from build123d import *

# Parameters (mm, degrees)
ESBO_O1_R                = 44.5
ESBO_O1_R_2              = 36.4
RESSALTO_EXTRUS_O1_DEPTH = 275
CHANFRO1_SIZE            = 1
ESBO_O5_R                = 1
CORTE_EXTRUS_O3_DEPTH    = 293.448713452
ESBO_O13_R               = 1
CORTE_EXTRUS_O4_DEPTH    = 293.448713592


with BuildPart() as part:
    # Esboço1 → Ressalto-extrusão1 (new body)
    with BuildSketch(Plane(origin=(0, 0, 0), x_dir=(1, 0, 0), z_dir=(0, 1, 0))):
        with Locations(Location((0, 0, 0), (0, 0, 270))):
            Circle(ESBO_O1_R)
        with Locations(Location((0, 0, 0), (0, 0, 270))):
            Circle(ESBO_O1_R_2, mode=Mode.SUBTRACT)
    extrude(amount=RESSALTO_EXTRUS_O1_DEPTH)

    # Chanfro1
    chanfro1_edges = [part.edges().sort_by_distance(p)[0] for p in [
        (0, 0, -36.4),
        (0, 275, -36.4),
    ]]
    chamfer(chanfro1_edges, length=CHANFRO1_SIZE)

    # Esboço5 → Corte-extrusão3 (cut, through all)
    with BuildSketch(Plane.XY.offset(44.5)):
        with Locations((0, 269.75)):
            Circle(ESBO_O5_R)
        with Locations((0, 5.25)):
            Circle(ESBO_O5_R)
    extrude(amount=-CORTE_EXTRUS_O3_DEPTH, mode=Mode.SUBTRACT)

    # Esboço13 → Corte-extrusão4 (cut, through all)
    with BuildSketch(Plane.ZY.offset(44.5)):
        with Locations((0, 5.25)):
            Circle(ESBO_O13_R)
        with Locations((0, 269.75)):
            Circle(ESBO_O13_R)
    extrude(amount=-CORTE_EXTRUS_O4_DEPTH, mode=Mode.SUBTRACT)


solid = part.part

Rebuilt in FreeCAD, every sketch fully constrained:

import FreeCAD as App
import Part
import Sketcher

V = App.Vector
Q = App.Units.Quantity


def edges_at(feature, points):
    """Names of the edges that pass closest to the given points."""
    edges = feature.Shape.Edges
    near = lambda p: min(range(len(edges)), key=lambda i: edges[i].distToShape(Part.Vertex(*p))[0])
    return sorted({f"Edge{near(p) + 1}" for p in points})

doc = App.newDocument("Part")
body = doc.addObject("PartDesign::Body", "Body")

sketch1 = body.newObject("Sketcher::SketchObject", "Sketch")
sketch1.AttachmentSupport = (doc.getObject("XZ_Plane"), [""])
sketch1.MapMode = "FlatFace"
sketch1.addGeometry(Part.Circle(V(0, 0, 0), V(0, 0, 1), 44), False)
sketch1.addGeometry(Part.Circle(V(0, 0, 0), V(0, 0, 1), 36), False)
sketch1.addConstraint(Sketcher.Constraint("Coincident", 0, 3, -1, 1))
sketch1.addConstraint(Sketcher.Constraint("Coincident", 1, 3, -1, 1))
sketch1.addConstraint(Sketcher.Constraint("Diameter", 0, Q("89 mm")))
sketch1.addConstraint(Sketcher.Constraint("Diameter", 1, Q("72.8 mm")))
pad1 = body.newObject("PartDesign::Pad", "Pad")
pad1.Profile = sketch1
pad1.Length = 275
pad1.Reversed = True
doc.recompute()

chamfer = body.newObject("PartDesign::Chamfer", "Chamfer")
chamfer.Base = (pad1, edges_at(pad1, [(0, 0, -36.4), (0, 275, -36.4)]))
chamfer.Size = 1

sketch2 = body.newObject("Sketcher::SketchObject", "Sketch001")
sketch2.AttachmentSupport = (doc.getObject("XY_Plane"), [""])
sketch2.MapMode = "FlatFace"
sketch2.AttachmentOffset = App.Placement(V(0, 0, 44.5), App.Rotation())
sketch2.addGeometry(Part.Circle(V(0, 269.8, 0), V(0, 0, 1), 1), False)
sketch2.addGeometry(Part.Circle(V(0, 5.2, 0), V(0, 0, 1), 1), False)
sketch2.addConstraint(Sketcher.Constraint("Equal", 0, 1))
sketch2.addConstraint(Sketcher.Constraint("PointOnObject", 0, 3, -2))
sketch2.addConstraint(Sketcher.Constraint("PointOnObject", 1, 3, -2))
sketch2.addConstraint(Sketcher.Constraint("Diameter", 0, Q("2 mm")))
sketch2.addConstraint(Sketcher.Constraint("DistanceY", 1, 3, 0, 3, Q("264.5 mm")))
sketch2.addConstraint(Sketcher.Constraint("DistanceY", -1, 1, 0, 3, Q("269.75 mm")))
pocket1 = body.newObject("PartDesign::Pocket", "Pocket")
pocket1.Profile = sketch2
pocket1.Type = "ThroughAll"

sketch3 = body.newObject("Sketcher::SketchObject", "Sketch002")
sketch3.AttachmentSupport = (doc.getObject("YZ_Plane"), [""])
sketch3.MapMode = "FlatFace"
sketch3.AttachmentOffset = App.Placement(V(0, 0, -44.5), App.Rotation())
sketch3.addGeometry(Part.Circle(V(5.2, 0, 0), V(0, 0, 1), 1), False)
sketch3.addGeometry(Part.Circle(V(269.8, 0, 0), V(0, 0, 1), 1), False)
sketch3.addConstraint(Sketcher.Constraint("Equal", 0, 1))
sketch3.addConstraint(Sketcher.Constraint("PointOnObject", 0, 3, -1))
sketch3.addConstraint(Sketcher.Constraint("PointOnObject", 1, 3, -1))
sketch3.addConstraint(Sketcher.Constraint("Diameter", 0, Q("2 mm")))
sketch3.addConstraint(Sketcher.Constraint("DistanceX", 0, 3, 1, 3, Q("264.5 mm")))
sketch3.addConstraint(Sketcher.Constraint("DistanceX", -1, 1, 0, 3, Q("5.25 mm")))
pocket2 = body.newObject("PartDesign::Pocket", "Pocket001")
pocket2.Profile = sketch3
pocket2.Type = "ThroughAll"
pocket2.Reversed = True

doc.recompute()
